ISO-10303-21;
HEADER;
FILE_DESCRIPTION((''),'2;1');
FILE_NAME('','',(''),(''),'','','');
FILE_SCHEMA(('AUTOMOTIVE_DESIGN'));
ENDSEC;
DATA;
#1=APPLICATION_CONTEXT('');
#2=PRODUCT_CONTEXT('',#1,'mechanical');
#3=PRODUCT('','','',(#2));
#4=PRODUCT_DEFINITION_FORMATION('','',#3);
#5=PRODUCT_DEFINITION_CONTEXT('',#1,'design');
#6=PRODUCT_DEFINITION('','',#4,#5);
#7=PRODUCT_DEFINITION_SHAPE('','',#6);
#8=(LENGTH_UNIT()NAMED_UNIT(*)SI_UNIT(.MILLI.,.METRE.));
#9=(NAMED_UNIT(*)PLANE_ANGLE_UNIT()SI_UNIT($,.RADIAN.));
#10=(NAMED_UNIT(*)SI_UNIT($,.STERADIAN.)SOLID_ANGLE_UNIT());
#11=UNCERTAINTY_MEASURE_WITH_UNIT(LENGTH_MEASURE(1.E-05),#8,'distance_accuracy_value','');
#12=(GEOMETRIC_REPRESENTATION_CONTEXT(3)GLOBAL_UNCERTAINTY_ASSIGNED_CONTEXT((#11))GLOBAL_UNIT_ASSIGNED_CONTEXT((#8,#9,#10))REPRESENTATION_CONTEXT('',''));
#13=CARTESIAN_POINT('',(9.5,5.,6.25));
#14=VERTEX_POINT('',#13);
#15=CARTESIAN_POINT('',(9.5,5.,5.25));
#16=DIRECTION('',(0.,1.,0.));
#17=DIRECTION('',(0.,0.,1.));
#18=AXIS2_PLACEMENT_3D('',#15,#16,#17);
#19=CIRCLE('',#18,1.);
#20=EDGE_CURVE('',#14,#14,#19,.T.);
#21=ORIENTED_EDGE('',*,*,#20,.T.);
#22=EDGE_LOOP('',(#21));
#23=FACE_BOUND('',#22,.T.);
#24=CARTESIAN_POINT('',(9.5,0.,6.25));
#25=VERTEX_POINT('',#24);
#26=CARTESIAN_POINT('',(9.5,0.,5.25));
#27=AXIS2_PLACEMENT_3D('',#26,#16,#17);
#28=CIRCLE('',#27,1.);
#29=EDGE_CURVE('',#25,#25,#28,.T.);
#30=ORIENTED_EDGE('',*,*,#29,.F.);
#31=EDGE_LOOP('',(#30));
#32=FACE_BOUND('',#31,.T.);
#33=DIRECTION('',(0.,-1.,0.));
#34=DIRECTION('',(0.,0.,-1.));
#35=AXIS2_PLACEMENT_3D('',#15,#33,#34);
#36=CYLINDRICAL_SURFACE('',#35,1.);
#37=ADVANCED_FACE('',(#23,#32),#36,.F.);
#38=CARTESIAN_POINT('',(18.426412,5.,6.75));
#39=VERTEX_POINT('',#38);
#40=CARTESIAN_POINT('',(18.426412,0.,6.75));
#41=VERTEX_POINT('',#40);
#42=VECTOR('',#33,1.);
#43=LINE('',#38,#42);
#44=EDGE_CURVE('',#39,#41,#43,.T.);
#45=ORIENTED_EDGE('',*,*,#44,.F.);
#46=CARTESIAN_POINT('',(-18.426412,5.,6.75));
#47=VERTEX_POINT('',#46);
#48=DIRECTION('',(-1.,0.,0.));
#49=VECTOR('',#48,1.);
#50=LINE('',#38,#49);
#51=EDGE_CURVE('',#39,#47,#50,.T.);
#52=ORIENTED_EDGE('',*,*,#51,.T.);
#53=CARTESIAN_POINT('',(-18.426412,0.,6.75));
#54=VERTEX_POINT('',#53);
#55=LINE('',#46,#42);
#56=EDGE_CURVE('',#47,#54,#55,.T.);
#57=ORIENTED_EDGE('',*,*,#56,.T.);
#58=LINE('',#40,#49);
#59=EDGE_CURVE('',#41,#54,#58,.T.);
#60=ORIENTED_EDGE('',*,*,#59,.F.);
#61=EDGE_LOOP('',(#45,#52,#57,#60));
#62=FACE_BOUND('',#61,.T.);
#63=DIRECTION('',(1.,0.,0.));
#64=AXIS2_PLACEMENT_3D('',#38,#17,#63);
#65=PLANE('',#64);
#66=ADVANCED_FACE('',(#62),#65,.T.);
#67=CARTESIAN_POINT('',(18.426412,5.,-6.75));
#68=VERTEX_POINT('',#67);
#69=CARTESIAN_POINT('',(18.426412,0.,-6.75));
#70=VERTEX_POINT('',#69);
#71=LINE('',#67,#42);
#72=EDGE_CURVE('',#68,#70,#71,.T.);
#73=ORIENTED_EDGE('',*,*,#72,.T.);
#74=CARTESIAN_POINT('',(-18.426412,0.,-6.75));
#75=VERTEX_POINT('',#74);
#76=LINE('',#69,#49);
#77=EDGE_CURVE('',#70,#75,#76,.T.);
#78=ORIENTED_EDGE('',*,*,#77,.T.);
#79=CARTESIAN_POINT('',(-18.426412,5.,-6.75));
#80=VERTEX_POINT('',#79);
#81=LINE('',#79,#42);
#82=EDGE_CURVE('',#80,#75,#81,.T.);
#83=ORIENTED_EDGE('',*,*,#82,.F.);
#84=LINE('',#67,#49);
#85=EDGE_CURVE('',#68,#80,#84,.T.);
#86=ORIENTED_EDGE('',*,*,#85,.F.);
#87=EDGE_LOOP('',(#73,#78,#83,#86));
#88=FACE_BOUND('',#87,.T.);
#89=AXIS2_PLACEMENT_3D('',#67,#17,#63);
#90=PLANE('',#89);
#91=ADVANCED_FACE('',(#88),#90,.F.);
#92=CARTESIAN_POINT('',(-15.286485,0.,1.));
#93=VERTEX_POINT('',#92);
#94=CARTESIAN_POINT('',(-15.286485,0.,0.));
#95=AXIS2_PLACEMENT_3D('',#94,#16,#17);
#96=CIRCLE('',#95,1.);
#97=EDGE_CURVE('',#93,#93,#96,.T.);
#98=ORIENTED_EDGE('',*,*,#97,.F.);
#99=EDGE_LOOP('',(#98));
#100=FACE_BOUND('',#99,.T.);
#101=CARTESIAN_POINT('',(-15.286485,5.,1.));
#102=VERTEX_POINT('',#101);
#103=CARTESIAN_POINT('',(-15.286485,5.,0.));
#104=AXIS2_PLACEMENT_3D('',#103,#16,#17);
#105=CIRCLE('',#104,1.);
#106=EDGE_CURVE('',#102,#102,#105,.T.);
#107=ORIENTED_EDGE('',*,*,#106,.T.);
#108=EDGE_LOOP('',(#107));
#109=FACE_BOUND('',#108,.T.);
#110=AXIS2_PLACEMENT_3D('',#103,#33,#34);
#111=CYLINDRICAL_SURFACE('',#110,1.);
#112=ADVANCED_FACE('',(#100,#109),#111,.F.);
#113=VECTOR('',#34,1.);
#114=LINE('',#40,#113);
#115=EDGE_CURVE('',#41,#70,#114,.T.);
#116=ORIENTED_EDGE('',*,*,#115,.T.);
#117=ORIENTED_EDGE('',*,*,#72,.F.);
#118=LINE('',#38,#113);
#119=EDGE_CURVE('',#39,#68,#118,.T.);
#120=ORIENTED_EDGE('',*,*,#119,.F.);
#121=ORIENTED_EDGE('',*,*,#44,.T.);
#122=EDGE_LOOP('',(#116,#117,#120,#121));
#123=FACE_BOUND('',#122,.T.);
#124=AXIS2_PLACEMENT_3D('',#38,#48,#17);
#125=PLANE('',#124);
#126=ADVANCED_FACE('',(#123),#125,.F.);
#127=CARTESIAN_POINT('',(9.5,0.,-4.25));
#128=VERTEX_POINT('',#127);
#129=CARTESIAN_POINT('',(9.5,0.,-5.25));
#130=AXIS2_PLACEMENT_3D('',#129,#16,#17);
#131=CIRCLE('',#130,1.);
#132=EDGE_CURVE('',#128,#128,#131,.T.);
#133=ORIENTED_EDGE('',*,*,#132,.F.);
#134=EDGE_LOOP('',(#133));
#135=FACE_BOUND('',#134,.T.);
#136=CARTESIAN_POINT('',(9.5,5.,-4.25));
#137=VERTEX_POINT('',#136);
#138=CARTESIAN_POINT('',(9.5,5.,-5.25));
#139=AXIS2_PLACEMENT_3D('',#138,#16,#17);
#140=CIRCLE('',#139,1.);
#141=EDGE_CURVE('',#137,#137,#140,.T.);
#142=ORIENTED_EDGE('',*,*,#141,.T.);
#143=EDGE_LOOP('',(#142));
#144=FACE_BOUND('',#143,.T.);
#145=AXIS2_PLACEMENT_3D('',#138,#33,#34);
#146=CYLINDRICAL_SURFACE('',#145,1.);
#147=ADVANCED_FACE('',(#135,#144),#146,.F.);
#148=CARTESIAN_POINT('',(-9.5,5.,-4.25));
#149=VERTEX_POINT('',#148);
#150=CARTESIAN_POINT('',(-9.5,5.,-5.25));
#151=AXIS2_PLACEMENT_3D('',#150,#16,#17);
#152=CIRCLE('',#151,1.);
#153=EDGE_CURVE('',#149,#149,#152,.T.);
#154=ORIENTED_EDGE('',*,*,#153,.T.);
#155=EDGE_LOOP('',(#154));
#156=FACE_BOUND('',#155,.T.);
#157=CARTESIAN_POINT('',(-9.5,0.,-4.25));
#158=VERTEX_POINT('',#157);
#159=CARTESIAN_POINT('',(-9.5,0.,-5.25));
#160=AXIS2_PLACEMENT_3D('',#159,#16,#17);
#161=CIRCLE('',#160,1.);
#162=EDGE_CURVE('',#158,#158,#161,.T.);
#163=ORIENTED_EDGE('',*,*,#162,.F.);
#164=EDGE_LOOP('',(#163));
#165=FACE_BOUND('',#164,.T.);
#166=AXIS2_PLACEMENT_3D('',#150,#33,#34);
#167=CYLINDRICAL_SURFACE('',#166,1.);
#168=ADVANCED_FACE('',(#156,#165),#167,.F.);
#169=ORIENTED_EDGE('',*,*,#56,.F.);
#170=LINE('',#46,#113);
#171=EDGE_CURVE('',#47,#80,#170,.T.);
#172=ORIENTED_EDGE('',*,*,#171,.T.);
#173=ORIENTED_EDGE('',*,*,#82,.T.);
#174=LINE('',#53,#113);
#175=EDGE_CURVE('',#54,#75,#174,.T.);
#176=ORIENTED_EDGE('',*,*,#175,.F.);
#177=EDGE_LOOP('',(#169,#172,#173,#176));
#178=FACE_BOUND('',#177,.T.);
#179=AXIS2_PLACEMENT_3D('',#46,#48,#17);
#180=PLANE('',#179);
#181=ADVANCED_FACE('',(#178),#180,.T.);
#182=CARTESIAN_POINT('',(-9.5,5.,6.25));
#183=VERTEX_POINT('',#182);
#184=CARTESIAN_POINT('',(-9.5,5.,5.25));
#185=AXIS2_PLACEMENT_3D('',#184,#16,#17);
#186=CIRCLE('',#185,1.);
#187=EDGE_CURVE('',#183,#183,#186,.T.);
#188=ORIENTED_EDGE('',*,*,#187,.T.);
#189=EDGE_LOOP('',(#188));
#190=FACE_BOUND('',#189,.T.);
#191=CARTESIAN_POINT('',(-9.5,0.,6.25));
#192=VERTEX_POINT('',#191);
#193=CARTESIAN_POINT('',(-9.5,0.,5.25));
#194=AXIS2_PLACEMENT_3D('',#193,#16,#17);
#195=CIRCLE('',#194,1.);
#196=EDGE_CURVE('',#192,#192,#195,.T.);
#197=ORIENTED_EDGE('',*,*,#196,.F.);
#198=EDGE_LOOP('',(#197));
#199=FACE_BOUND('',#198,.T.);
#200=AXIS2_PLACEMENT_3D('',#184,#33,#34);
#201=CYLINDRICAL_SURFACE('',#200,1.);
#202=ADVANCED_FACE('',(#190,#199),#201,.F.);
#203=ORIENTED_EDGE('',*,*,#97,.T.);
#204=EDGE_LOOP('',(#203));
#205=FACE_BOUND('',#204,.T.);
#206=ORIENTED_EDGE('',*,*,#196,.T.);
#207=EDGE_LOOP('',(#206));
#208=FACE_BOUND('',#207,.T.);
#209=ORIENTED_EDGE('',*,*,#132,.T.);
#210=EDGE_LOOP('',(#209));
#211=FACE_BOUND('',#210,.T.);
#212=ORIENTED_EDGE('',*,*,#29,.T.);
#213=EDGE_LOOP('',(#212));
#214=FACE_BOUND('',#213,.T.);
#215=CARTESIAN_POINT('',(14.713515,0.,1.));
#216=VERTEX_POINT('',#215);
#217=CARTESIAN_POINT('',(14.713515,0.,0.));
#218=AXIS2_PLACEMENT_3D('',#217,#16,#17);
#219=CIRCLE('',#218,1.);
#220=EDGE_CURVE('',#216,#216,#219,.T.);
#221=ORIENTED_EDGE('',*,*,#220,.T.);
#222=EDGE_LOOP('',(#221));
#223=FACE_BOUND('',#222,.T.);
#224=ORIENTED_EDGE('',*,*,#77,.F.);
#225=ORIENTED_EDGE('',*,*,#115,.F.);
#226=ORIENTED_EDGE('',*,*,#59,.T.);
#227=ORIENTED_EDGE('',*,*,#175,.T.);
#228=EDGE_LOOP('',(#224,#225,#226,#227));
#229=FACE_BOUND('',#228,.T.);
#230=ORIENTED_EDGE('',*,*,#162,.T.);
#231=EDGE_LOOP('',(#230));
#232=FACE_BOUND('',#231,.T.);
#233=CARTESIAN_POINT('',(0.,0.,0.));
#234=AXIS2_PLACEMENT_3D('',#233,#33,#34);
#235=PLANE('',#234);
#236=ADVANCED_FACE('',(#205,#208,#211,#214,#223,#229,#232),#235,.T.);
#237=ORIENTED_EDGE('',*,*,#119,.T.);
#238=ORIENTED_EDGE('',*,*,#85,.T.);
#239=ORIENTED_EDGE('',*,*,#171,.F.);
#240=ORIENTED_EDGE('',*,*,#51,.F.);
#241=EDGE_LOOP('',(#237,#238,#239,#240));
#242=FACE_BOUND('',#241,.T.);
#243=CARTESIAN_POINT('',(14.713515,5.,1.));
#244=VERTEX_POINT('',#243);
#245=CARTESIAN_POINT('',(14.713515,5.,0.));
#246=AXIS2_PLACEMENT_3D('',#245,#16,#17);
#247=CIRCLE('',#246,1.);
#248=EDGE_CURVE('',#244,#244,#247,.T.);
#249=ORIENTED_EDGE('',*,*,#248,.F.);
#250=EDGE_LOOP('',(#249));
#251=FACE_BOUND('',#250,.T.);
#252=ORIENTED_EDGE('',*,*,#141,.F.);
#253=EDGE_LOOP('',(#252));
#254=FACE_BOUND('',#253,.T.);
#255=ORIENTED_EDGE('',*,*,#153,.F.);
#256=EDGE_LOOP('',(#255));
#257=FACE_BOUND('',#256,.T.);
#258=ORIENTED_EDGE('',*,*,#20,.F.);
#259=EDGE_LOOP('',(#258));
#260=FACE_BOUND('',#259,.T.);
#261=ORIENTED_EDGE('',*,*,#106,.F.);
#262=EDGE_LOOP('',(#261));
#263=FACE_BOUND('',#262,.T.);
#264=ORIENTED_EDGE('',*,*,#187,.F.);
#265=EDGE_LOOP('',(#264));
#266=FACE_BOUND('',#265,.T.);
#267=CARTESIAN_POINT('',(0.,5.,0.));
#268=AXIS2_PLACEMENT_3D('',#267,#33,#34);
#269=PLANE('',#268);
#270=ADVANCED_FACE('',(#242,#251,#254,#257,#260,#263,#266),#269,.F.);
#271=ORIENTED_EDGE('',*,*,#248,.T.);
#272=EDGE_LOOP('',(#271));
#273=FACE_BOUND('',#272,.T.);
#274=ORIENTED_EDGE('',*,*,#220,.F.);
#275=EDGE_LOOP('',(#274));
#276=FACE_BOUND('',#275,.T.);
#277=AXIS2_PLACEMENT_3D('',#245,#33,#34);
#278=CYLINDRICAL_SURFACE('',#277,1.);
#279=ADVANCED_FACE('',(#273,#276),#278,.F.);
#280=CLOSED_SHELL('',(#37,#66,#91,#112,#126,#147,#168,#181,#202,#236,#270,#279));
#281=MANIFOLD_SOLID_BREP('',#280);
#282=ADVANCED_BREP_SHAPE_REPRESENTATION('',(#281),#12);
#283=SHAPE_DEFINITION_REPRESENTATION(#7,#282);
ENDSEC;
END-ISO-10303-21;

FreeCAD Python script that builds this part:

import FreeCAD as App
import Part
import Sketcher
from FreeCAD import Vector
Q = App.Units.Quantity

doc = App.newDocument("Part")
params = doc.addObject("Spreadsheet::Sheet", "Params")
for row, (alias, value) in enumerate([
    ("sketch1_diameter", "2 mm"),
    ("sketch1_height", "13.5 mm"),
    ("pad1_length", "5 mm"),
], start=1):
    params.set(f"A{row}", alias)
    params.set(f"B{row}", "=" + value)
    params.setAlias(f"B{row}", alias)

body = doc.addObject("PartDesign::Body", "Body")

# Sketch on XZ plane
sketch1 = body.newObject("Sketcher::SketchObject", "Sketch")
sketch1.AttachmentSupport = (doc.getObject("XZ_Plane"), [""])
sketch1.MapMode = "FlatFace"
sketch1.addGeometry(Part.LineSegment(Vector(-18.4, -6.8, 0), Vector(-18.4, 6.8, 0)), False)
sketch1.addGeometry(Part.LineSegment(Vector(-18.4, 6.8, 0), Vector(18.4, 6.8, 0)), False)
sketch1.addGeometry(Part.LineSegment(Vector(18.4, 6.8, 0), Vector(18.4, -6.8, 0)), False)
sketch1.addGeometry(Part.LineSegment(Vector(18.4, -6.8, 0), Vector(-18.4, -6.8, 0)), False)
sketch1.addGeometry(Part.Circle(Vector(-9.5, 5.2, 0), Vector(0, 0, 1), 1), False)
sketch1.addGeometry(Part.Circle(Vector(9.5, 5.2, 0), Vector(0, 0, 1), 1), False)
sketch1.addGeometry(Part.Circle(Vector(-15.3, 0, 0), Vector(0, 0, 1), 1), False)
sketch1.addGeometry(Part.Circle(Vector(-9.5, -5.2, 0), Vector(0, 0, 1), 1), False)
sketch1.addGeometry(Part.Circle(Vector(14.7, 0, 0), Vector(0, 0, 1), 1), False)
sketch1.addGeometry(Part.Circle(Vector(9.5, -5.2, 0), Vector(0, 0, 1), 1), False)
sketch1.addConstraint(Sketcher.Constraint("Coincident", 0, 2, 1, 1))
sketch1.addConstraint(Sketcher.Constraint("Coincident", 1, 2, 2, 1))
sketch1.addConstraint(Sketcher.Constraint("Coincident", 2, 2, 3, 1))
sketch1.addConstraint(Sketcher.Constraint("Coincident", 3, 2, 0, 1))
sketch1.addConstraint(Sketcher.Constraint("Vertical", 0))
sketch1.addConstraint(Sketcher.Constraint("Horizontal", 1))
sketch1.addConstraint(Sketcher.Constraint("Vertical", 2))
sketch1.addConstraint(Sketcher.Constraint("Horizontal", 3))
sketch1.addConstraint(Sketcher.Constraint("Equal", 4, 5))
sketch1.addConstraint(Sketcher.Constraint("Equal", 5, 6))
sketch1.addConstraint(Sketcher.Constraint("Equal", 6, 7))
sketch1.addConstraint(Sketcher.Constraint("Equal", 7, 8))
sketch1.addConstraint(Sketcher.Constraint("Equal", 8, 9))
sketch1.addConstraint(Sketcher.Constraint("Symmetric", 5, 3, 7, 3, -1, 1))
sketch1.addConstraint(Sketcher.Constraint("Symmetric", 4, 3, 9, 3, -1, 1))
sketch1.addConstraint(Sketcher.Constraint("Symmetric", 0, 2, 2, 2, -1, 1))
sketch1.addConstraint(Sketcher.Constraint("Symmetric", 4, 3, 5, 3, -2))
sketch1.addConstraint(Sketcher.Constraint("PointOnObject", 6, 3, -1))
sketch1.addConstraint(Sketcher.Constraint("PointOnObject", 8, 3, -1))
sketch1.addConstraint(Sketcher.Constraint("Diameter", 4, Q("2 mm")))
sketch1.addConstraint(Sketcher.Constraint("DistanceY", 0, 1, 0, 2, Q("13.5 mm")))
sketch1.addConstraint(Sketcher.Constraint("DistanceX", 4, 3, 5, 3, Q("19 mm")))
sketch1.addConstraint(Sketcher.Constraint("DistanceX", 6, 3, 8, 3, Q("30 mm")))
sketch1.addConstraint(Sketcher.Constraint("DistanceY", 7, 3, 0, 2, Q("12 mm")))
sketch1.addConstraint(Sketcher.Constraint("DistanceX", 1, 1, 1, 2, Q("36.852825 mm")))
sketch1.addConstraint(Sketcher.Constraint("DistanceX", 6, 3, -1, 1, Q("15.286485 mm")))
sketch1.setExpression("Constraints[19]", "Params.sketch1_diameter")
sketch1.setExpression("Constraints[20]", "Params.sketch1_height")
pad1 = body.newObject("PartDesign::Pad", "Pad")
pad1.Profile = sketch1
pad1.setExpression("Length", "Params.pad1_length")
pad1.Reversed = True

doc.recompute()
